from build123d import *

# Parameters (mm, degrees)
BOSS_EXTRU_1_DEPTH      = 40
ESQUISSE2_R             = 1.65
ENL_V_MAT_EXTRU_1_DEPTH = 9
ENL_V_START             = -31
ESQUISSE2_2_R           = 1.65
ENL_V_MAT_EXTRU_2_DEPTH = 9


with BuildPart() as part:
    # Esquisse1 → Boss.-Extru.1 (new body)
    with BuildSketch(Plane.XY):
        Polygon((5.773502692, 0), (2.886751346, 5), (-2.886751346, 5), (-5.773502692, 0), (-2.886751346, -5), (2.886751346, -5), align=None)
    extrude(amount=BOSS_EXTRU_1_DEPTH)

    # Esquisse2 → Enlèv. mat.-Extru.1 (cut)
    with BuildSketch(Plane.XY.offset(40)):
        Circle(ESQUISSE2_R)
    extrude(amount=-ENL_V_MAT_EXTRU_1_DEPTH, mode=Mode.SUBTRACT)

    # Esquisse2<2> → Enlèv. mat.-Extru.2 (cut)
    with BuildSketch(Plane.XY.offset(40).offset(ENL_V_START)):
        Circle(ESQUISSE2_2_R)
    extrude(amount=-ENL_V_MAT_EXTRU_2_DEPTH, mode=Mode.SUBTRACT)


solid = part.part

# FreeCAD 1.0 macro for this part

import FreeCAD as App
import Part
import Sketcher
Q = App.Units.Quantity


def add_polygon(sketch, points):
    """Adds a closed chain of lines whose ends are joined by coincident constraints."""
    first, n = sketch.GeometryCount, len(points)
    for a, b in zip(points, points[1:] + points[:1]):
        sketch.addGeometry(Part.LineSegment(App.Vector(*a, 0), App.Vector(*b, 0)), False)
    for i in range(n):
        sketch.addConstraint(Sketcher.Constraint("Coincident", first + i, 2, first + (i + 1) % n, 1))

doc = App.newDocument("Part")
body = doc.addObject("PartDesign::Body", "Body")

# Sketch on XY plane
sketch1 = doc.addObject("Sketcher::SketchObject", "Sketch")
body.addObject(sketch1)
sketch1.AttachmentSupport = (doc.XY_Plane, [""])
sketch1.MapMode = "FlatFace"
add_polygon(sketch1, [(6, 0), (3, 5), (-3, 5), (-6, 0), (-3, -5), (3, -5)])  # lines 0-5
sketch1.addConstraint(Sketcher.Constraint("Horizontal", 1))
sketch1.addConstraint(Sketcher.Constraint("Horizontal", 4))
sketch1.addConstraint(Sketcher.Constraint("Symmetric", 0, 2, 3, 2, -1, 1))
sketch1.addConstraint(Sketcher.Constraint("Symmetric", 2, 2, 5, 2, -1, 1))
sketch1.addConstraint(Sketcher.Constraint("PointOnObject", 2, 2, -1))
sketch1.addConstraint(Sketcher.Constraint("Parallel", 2, 5))
sketch1.addConstraint(Sketcher.Constraint("Vertical", 1, 2, 3, 2))
sketch1.addConstraint(Sketcher.Constraint("Angle", 0, Q("120 deg")))
sketch1.addConstraint(Sketcher.Constraint("DistanceY", -1, 1, 0, 2, Q("5 mm")))
sketch1.addConstraint(Sketcher.Constraint("DistanceX", 1, 2, 1, 1, Q("5.773503 mm")))
pad1 = doc.addObject("PartDesign::Pad", "Pad")
body.addObject(pad1)
pad1.Profile = sketch1
pad1.Length = 40

# Sketch on XY plane
sketch2 = doc.addObject("Sketcher::SketchObject", "Sketch001")
body.addObject(sketch2)
sketch2.AttachmentSupport = (doc.XY_Plane, [""])
sketch2.MapMode = "FlatFace"
sketch2.AttachmentOffset = App.Placement(App.Vector(0, 0, 40), App.Rotation())
sketch2.addGeometry(Part.Circle(App.Vector(0, 0, 0), App.Vector(0, 0, 1), 1.6), False)
sketch2.addConstraint(Sketcher.Constraint("Coincident", 0, 3, -1, 1))
sketch2.addConstraint(Sketcher.Constraint("Diameter", 0, Q("3.3 mm")))
pocket1 = doc.addObject("PartDesign::Pocket", "Pocket")
body.addObject(pocket1)
pocket1.Profile = sketch2
pocket1.Length = 9

# Sketch on XY plane
sketch3 = doc.addObject("Sketcher::SketchObject", "Sketch002")
body.addObject(sketch3)
sketch3.AttachmentSupport = (doc.XY_Plane, [""])
sketch3.MapMode = "FlatFace"
sketch3.AttachmentOffset = App.Placement(App.Vector(0, 0, 9), App.Rotation())
sketch3.addGeometry(Part.Circle(App.Vector(0, 0, 0), App.Vector(0, 0, 1), 1.6), False)
sketch3.addConstraint(Sketcher.Constraint("Coincident", 0, 3, -1, 1))
sketch3.addConstraint(Sketcher.Constraint("Diameter", 0, Q("3.3 mm")))
pocket2 = doc.addObject("PartDesign::Pocket", "Pocket001")
body.addObject(pocket2)
pocket2.Profile = sketch3
pocket2.Length = 9

doc.recompute()
